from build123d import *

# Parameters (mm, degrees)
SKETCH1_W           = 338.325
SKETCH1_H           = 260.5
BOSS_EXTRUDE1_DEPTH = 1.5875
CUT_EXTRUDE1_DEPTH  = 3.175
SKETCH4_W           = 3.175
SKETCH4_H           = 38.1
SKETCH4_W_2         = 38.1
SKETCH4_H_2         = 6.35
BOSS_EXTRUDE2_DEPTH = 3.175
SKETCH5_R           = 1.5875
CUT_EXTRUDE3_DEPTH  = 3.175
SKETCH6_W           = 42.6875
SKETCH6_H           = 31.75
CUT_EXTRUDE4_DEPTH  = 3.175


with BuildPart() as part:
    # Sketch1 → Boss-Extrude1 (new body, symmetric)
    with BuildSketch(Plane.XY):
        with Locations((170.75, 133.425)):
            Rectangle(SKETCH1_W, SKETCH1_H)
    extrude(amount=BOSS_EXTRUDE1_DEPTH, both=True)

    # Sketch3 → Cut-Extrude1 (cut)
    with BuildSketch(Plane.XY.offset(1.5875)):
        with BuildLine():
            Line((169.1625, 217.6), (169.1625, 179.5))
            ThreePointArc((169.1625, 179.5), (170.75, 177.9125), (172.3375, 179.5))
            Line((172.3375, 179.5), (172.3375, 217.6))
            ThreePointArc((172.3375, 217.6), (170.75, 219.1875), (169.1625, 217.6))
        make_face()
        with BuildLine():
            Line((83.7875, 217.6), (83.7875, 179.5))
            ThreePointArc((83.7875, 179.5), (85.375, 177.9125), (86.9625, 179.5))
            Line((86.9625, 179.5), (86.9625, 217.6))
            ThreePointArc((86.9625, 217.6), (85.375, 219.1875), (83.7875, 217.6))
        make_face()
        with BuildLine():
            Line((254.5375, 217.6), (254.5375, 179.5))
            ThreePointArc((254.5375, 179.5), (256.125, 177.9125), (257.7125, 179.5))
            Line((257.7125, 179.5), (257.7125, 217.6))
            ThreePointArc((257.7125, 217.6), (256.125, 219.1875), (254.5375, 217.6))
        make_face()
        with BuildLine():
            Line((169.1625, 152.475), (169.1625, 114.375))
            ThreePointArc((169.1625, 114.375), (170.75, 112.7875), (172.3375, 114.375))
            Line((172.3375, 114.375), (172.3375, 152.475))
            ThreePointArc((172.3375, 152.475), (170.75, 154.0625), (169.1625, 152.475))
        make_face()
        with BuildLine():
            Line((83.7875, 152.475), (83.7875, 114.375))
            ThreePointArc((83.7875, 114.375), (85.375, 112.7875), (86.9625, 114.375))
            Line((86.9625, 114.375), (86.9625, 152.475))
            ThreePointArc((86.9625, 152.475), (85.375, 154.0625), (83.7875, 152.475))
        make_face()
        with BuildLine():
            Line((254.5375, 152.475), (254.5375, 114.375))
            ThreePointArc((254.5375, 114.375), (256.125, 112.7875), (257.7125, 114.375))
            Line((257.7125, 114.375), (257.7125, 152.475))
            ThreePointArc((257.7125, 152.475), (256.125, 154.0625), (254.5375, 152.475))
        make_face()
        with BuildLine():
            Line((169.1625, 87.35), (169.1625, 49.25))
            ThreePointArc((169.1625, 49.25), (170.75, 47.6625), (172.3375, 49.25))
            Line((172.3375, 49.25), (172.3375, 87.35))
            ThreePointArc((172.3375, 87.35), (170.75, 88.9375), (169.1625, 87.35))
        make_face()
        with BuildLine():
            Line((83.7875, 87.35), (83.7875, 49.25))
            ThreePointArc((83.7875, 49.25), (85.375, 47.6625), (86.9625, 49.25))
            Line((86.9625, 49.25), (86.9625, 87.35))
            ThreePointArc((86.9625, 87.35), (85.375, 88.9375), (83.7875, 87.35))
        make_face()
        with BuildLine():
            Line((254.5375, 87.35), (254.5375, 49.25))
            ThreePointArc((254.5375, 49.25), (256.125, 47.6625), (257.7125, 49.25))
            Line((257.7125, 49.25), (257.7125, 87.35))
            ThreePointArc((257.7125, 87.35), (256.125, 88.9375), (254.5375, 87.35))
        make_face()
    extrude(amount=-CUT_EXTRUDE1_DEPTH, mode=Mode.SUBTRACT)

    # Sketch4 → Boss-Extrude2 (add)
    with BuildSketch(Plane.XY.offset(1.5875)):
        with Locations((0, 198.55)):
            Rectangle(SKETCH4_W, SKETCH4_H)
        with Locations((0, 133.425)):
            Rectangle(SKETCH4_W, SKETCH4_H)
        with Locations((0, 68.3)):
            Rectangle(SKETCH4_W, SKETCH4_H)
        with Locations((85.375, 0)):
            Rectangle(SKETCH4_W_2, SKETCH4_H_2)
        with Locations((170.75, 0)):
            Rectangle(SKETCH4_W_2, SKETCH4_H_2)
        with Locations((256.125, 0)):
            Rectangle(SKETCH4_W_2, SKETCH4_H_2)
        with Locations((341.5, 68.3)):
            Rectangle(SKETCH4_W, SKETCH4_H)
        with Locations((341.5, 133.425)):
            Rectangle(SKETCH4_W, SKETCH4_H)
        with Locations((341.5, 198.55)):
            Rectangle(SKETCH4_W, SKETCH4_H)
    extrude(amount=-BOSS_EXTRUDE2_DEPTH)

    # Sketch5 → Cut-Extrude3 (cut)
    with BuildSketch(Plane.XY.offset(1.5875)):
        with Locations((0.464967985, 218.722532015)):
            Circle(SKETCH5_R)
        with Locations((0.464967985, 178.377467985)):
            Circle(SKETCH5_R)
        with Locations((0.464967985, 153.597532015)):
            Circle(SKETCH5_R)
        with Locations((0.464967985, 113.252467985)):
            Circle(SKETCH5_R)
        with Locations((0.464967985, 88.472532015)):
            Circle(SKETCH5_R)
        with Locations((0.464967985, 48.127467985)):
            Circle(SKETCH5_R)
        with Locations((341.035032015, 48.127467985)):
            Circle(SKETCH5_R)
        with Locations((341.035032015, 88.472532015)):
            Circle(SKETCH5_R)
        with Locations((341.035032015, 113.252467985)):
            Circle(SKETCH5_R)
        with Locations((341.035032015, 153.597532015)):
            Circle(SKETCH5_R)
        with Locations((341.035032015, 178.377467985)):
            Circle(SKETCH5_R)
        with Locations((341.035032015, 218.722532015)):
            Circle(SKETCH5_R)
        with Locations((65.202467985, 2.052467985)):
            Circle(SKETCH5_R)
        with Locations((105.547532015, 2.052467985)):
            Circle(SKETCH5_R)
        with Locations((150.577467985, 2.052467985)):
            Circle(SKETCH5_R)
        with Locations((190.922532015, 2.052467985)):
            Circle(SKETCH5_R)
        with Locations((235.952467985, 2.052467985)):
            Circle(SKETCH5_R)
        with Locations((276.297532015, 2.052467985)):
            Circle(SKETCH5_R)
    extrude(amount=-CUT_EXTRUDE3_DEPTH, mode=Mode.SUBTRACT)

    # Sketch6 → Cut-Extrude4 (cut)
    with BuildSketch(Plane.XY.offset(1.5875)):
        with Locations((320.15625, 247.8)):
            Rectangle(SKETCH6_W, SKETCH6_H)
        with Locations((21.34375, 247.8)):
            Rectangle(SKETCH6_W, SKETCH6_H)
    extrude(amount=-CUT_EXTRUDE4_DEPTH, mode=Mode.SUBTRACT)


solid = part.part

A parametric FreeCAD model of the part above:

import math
import FreeCAD as App
import Part
import Sketcher
from FreeCAD import Vector
Q = App.Units.Quantity


def add_polygon(sketch, points):
    """Adds a closed chain of lines whose ends are joined by coincident constraints."""
    first, n = sketch.GeometryCount, len(points)
    for a, b in zip(points, points[1:] + points[:1]):
        sketch.addGeometry(Part.LineSegment(App.Vector(*a, 0), App.Vector(*b, 0)), False)
    for i in range(n):
        sketch.addConstraint(Sketcher.Constraint("Coincident", first + i, 2, first + (i + 1) % n, 1))

doc = App.newDocument("Part")
body = doc.addObject("PartDesign::Body", "Body")

sketch1 = doc.addObject("Sketcher::SketchObject", "Sketch")
body.addObject(sketch1)
sketch1.AttachmentSupport = (doc.XY_Plane, [""])
sketch1.MapMode = "FlatFace"
add_polygon(sketch1, [(2, 264), (2, 3), (340, 3), (340, 264)])
sketch1.addConstraint([
    Sketcher.Constraint("Vertical", 0),
    Sketcher.Constraint("Horizontal", 1),
    Sketcher.Constraint("Vertical", 2),
    Sketcher.Constraint("Horizontal", 3),
    Sketcher.Constraint("DistanceX", -1, 1, 0, 2, Q("0.0625 in")),
    Sketcher.Constraint("DistanceY", -1, 1, 0, 2, Q("0.125 in")),
    Sketcher.Constraint("DistanceX", 1, 1, 1, 2, Q("338.325 mm")),
    Sketcher.Constraint("DistanceY", 0, 2, 0, 1, Q("260.5 mm")),
])
pad1 = doc.addObject("PartDesign::Pad", "Pad")
body.addObject(pad1)
pad1.Profile = sketch1
pad1.Length = Q("0.125 in")
pad1.Midplane = True

sketch2 = doc.addObject("Sketcher::SketchObject", "Sketch001")
body.addObject(sketch2)
sketch2.AttachmentSupport = (doc.XY_Plane, [""])
sketch2.MapMode = "FlatFace"
sketch2.AttachmentOffset = App.Placement(Vector(0, 0, 0.0625 * 25.4), App.Rotation())
sketch2.addGeometry([
    Part.LineSegment(Vector(169.2, 217.6, 0), Vector(169.2, 179.5, 0)),
    Part.ArcOfCircle(Part.Circle(Vector(170.8, 179.5, 0), Vector(0, 0, 1), 1.6), math.radians(180), math.radians(360)),
    Part.LineSegment(Vector(172.3, 179.5, 0), Vector(172.3, 217.6, 0)),
    Part.ArcOfCircle(Part.Circle(Vector(170.8, 217.6, 0), Vector(0, 0, 1), 1.6), math.radians(0), math.radians(180)),
    Part.LineSegment(Vector(83.8, 217.6, 0), Vector(83.8, 179.5, 0)),
    Part.ArcOfCircle(Part.Circle(Vector(85.4, 179.5, 0), Vector(0, 0, 1), 1.6), math.radians(180), math.radians(360)),
    Part.LineSegment(Vector(87, 179.5, 0), Vector(87, 217.6, 0)),
    Part.ArcOfCircle(Part.Circle(Vector(85.4, 217.6, 0), Vector(0, 0, 1), 1.6), math.radians(0), math.radians(180)),
    Part.LineSegment(Vector(254.5, 217.6, 0), Vector(254.5, 179.5, 0)),
    Part.ArcOfCircle(Part.Circle(Vector(256.1, 179.5, 0), Vector(0, 0, 1), 1.6), math.radians(180), math.radians(360)),
    Part.LineSegment(Vector(257.7, 179.5, 0), Vector(257.7, 217.6, 0)),
    Part.ArcOfCircle(Part.Circle(Vector(256.1, 217.6, 0), Vector(0, 0, 1), 1.6), math.radians(0), math.radians(180)),
    Part.LineSegment(Vector(169.2, 152.5, 0), Vector(169.2, 114.4, 0)),
    Part.ArcOfCircle(Part.Circle(Vector(170.8, 114.4, 0), Vector(0, 0, 1), 1.6), math.radians(180), math.radians(360)),
    Part.LineSegment(Vector(172.3, 114.4, 0), Vector(172.3, 152.5, 0)),
    Part.ArcOfCircle(Part.Circle(Vector(170.8, 152.5, 0), Vector(0, 0, 1), 1.6), math.radians(0), math.radians(180)),
    Part.LineSegment(Vector(83.8, 152.5, 0), Vector(83.8, 114.4, 0)),
    Part.ArcOfCircle(Part.Circle(Vector(85.4, 114.4, 0), Vector(0, 0, 1), 1.6), math.radians(180), math.radians(360)),
    Part.LineSegment(Vector(87, 114.4, 0), Vector(87, 152.5, 0)),
    Part.ArcOfCircle(Part.Circle(Vector(85.4, 152.5, 0), Vector(0, 0, 1), 1.6), math.radians(0), math.radians(180)),
    Part.LineSegment(Vector(254.5, 152.5, 0), Vector(254.5, 114.4, 0)),
    Part.ArcOfCircle(Part.Circle(Vector(256.1, 114.4, 0), Vector(0, 0, 1), 1.6), math.radians(180), math.radians(360)),
    Part.LineSegment(Vector(257.7, 114.4, 0), Vector(257.7, 152.5, 0)),
    Part.ArcOfCircle(Part.Circle(Vector(256.1, 152.5, 0), Vector(0, 0, 1), 1.6), math.radians(0), math.radians(180)),
    Part.LineSegment(Vector(169.2, 87.3, 0), Vector(169.2, 49.2, 0)),
    Part.ArcOfCircle(Part.Circle(Vector(170.8, 49.2, 0), Vector(0, 0, 1), 1.6), math.radians(180), math.radians(360)),
    Part.LineSegment(Vector(172.3, 49.2, 0), Vector(172.3, 87.3, 0)),
    Part.ArcOfCircle(Part.Circle(Vector(170.8, 87.3, 0), Vector(0, 0, 1), 1.6), math.radians(0), math.radians(180)),
    Part.LineSegment(Vector(83.8, 87.3, 0), Vector(83.8, 49.2, 0)),
    Part.ArcOfCircle(Part.Circle(Vector(85.4, 49.2, 0), Vector(0, 0, 1), 1.6), math.radians(180), math.radians(360)),
    Part.LineSegment(Vector(87, 49.2, 0), Vector(87, 87.3, 0)),
    Part.ArcOfCircle(Part.Circle(Vector(85.4, 87.3, 0), Vector(0, 0, 1), 1.6), math.radians(0), math.radians(180)),
    Part.LineSegment(Vector(254.5, 87.3, 0), Vector(254.5, 49.2, 0)),
    Part.ArcOfCircle(Part.Circle(Vector(256.1, 49.2, 0), Vector(0, 0, 1), 1.6), math.radians(180), math.radians(360)),
    Part.LineSegment(Vector(257.7, 49.2, 0), Vector(257.7, 87.3, 0)),
    Part.ArcOfCircle(Part.Circle(Vector(256.1, 87.3, 0), Vector(0, 0, 1), 1.6), math.radians(0), math.radians(180)),
], False)
sketch2.addConstraint([
    Sketcher.Constraint("Tangent", 0, 2, 1, 1),
    Sketcher.Constraint("Tangent", 1, 2, 2, 1),
    Sketcher.Constraint("Tangent", 2, 2, 3, 1),
    Sketcher.Constraint("Tangent", 3, 2, 0, 1),
    Sketcher.Constraint("Tangent", 4, 2, 5, 1),
    Sketcher.Constraint("Tangent", 5, 2, 6, 1),
    Sketcher.Constraint("Tangent", 6, 2, 7, 1),
    Sketcher.Constraint("Tangent", 7, 2, 4, 1),
    Sketcher.Constraint("Tangent", 8, 2, 9, 1),
    Sketcher.Constraint("Tangent", 9, 2, 10, 1),
    Sketcher.Constraint("Tangent", 10, 2, 11, 1),
    Sketcher.Constraint("Tangent", 11, 2, 8, 1),
    Sketcher.Constraint("Tangent", 12, 2, 13, 1),
    Sketcher.Constraint("Tangent", 13, 2, 14, 1),
    Sketcher.Constraint("Tangent", 14, 2, 15, 1),
    Sketcher.Constraint("Tangent", 15, 2, 12, 1),
    Sketcher.Constraint("Tangent", 16, 2, 17, 1),
    Sketcher.Constraint("Tangent", 17, 2, 18, 1),
    Sketcher.Constraint("Tangent", 18, 2, 19, 1),
    Sketcher.Constraint("Tangent", 19, 2, 16, 1),
    Sketcher.Constraint("Tangent", 20, 2, 21, 1),
    Sketcher.Constraint("Tangent", 21, 2, 22, 1),
    Sketcher.Constraint("Tangent", 22, 2, 23, 1),
    Sketcher.Constraint("Tangent", 23, 2, 20, 1),
    Sketcher.Constraint("Tangent", 24, 2, 25, 1),
    Sketcher.Constraint("Tangent", 25, 2, 26, 1),
    Sketcher.Constraint("Tangent", 26, 2, 27, 1),
    Sketcher.Constraint("Tangent", 27, 2, 24, 1),
    Sketcher.Constraint("Tangent", 28, 2, 29, 1),
    Sketcher.Constraint("Tangent", 29, 2, 30, 1),
    Sketcher.Constraint("Tangent", 30, 2, 31, 1),
    Sketcher.Constraint("Tangent", 31, 2, 28, 1),
    Sketcher.Constraint("Tangent", 32, 2, 33, 1),
    Sketcher.Constraint("Tangent", 33, 2, 34, 1),
    Sketcher.Constraint("Tangent", 34, 2, 35, 1),
    Sketcher.Constraint("Tangent", 35, 2, 32, 1),
    Sketcher.Constraint("Vertical", 0),
    Sketcher.Constraint("Vertical", 2),
    Sketcher.Constraint("Vertical", 4),
    Sketcher.Constraint("Vertical", 6),
    Sketcher.Constraint("Vertical", 8),
    Sketcher.Constraint("Vertical", 10),
    Sketcher.Constraint("Vertical", 12),
    Sketcher.Constraint("Vertical", 14),
    Sketcher.Constraint("Vertical", 16),
    Sketcher.Constraint("Vertical", 18),
    Sketcher.Constraint("Vertical", 20),
    Sketcher.Constraint("Vertical", 22),
    Sketcher.Constraint("Vertical", 24),
    Sketcher.Constraint("Vertical", 26),
    Sketcher.Constraint("Vertical", 28),
    Sketcher.Constraint("Vertical", 30),
    Sketcher.Constraint("Vertical", 32),
    Sketcher.Constraint("Vertical", 34),
    Sketcher.Constraint("Equal", 3, 5),
    Sketcher.Constraint("Equal", 7, 9),
    Sketcher.Constraint("Equal", 11, 13),
    Sketcher.Constraint("Equal", 15, 17),
    Sketcher.Constraint("Equal", 19, 21),
    Sketcher.Constraint("Equal", 23, 25),
    Sketcher.Constraint("Equal", 27, 29),
    Sketcher.Constraint("Equal", 31, 33),
    Sketcher.Constraint("Horizontal", 1, 3, 5, 3),
    Sketcher.Constraint("Horizontal", 3, 3, 7, 3),
    Sketcher.Constraint("Horizontal", 5, 3, 9, 3),
    Sketcher.Constraint("Horizontal", 7, 3, 11, 3),
    Sketcher.Constraint("Horizontal", 13, 3, 17, 3),
    Sketcher.Constraint("Horizontal", 15, 3, 19, 3),
    Sketcher.Constraint("Horizontal", 17, 3, 21, 3),
    Sketcher.Constraint("Horizontal", 19, 3, 23, 3),
    Sketcher.Constraint("Horizontal", 25, 3, 29, 3),
    Sketcher.Constraint("Horizontal", 27, 3, 31, 3),
    Sketcher.Constraint("Horizontal", 29, 3, 33, 3),
    Sketcher.Constraint("Horizontal", 31, 3, 35, 3),
    Sketcher.Constraint("Vertical", 3, 3, 13, 3),
    Sketcher.Constraint("Vertical", 7, 3, 17, 3),
    Sketcher.Constraint("Vertical", 11, 3, 21, 3),
    Sketcher.Constraint("Vertical", 15, 3, 25, 3),
    Sketcher.Constraint("Vertical", 19, 3, 29, 3),
    Sketcher.Constraint("Vertical", 23, 3, 33, 3),
    Sketcher.Constraint("Equal", 10, 12),
    Sketcher.Constraint("Equal", 22, 24),
    Sketcher.Constraint("DistanceY", 0, 2, 0, 1, Q("1.5 in")),
    Sketcher.Constraint("Radius", 1, Q("0.0625 in")),
    Sketcher.Constraint("DistanceX", -1, 1, 1, 3, Q("170.75 mm")),
    Sketcher.Constraint("DistanceY", -1, 1, 1, 3, Q("179.5 mm")),
    Sketcher.Constraint("DistanceX", -1, 1, 5, 3, Q("85.375 mm")),
    Sketcher.Constraint("DistanceX", -1, 1, 9, 3, Q("256.125 mm")),
    Sketcher.Constraint("DistanceY", -1, 1, 13, 3, Q("114.375 mm")),
    Sketcher.Constraint("DistanceY", -1, 1, 25, 3, Q("49.25 mm")),
])
pocket1 = doc.addObject("PartDesign::Pocket", "Pocket")
body.addObject(pocket1)
pocket1.Profile = sketch2
pocket1.Length = Q("0.125 in")

sketch3 = doc.addObject("Sketcher::SketchObject", "Sketch002")
body.addObject(sketch3)
sketch3.AttachmentSupport = (doc.XY_Plane, [""])
sketch3.MapMode = "FlatFace"
sketch3.AttachmentOffset = App.Placement(Vector(0, 0, 0.0625 * 25.4), App.Rotation())
add_polygon(sketch3, [(-1.6, 217.6), (-1.6, 179.5), (1.6, 179.5), (1.6, 217.6)])
add_polygon(sketch3, [(-1.6, 152.5), (-1.6, 114.4), (1.6, 114.4), (1.6, 152.5)])
add_polygon(sketch3, [(-1.6, 87.3), (-1.6, 49.2), (1.6, 49.2), (1.6, 87.3)])
add_polygon(sketch3, [(66.3, 3.2), (66.3, -3.2), (104.4, -3.2), (104.4, 3.2)])
add_polygon(sketch3, [(151.7, 3.2), (151.7, -3.2), (189.8, -3.2), (189.8, 3.2)])
add_polygon(sketch3, [(237.1, 3.2), (237.1, -3.2), (275.2, -3.2), (275.2, 3.2)])
add_polygon(sketch3, [(339.9, 87.3), (339.9, 49.2), (343.1, 49.2), (343.1, 87.3)])
add_polygon(sketch3, [(339.9, 152.5), (339.9, 114.4), (343.1, 114.4), (343.1, 152.5)])
add_polygon(sketch3, [(339.9, 217.6), (339.9, 179.5), (343.1, 179.5), (343.1, 217.6)])
sketch3.addConstraint([
    Sketcher.Constraint("Vertical", 0),
    Sketcher.Constraint("Horizontal", 1),
    Sketcher.Constraint("Vertical", 2),
    Sketcher.Constraint("Horizontal", 3),
    Sketcher.Constraint("Vertical", 4),
    Sketcher.Constraint("Horizontal", 5),
    Sketcher.Constraint("Vertical", 6),
    Sketcher.Constraint("Horizontal", 7),
    Sketcher.Constraint("Vertical", 8),
    Sketcher.Constraint("Horizontal", 9),
    Sketcher.Constraint("Vertical", 10),
    Sketcher.Constraint("Horizontal", 11),
    Sketcher.Constraint("Vertical", 12),
    Sketcher.Constraint("Horizontal", 13),
    Sketcher.Constraint("Vertical", 14),
    Sketcher.Constraint("Horizontal", 15),
    Sketcher.Constraint("Vertical", 16),
    Sketcher.Constraint("Horizontal", 17),
    Sketcher.Constraint("Vertical", 18),
    Sketcher.Constraint("Horizontal", 19),
    Sketcher.Constraint("Vertical", 20),
    Sketcher.Constraint("Horizontal", 21),
    Sketcher.Constraint("Vertical", 22),
    Sketcher.Constraint("Horizontal", 23),
    Sketcher.Constraint("Vertical", 24),
    Sketcher.Constraint("Horizontal", 25),
    Sketcher.Constraint("Vertical", 26),
    Sketcher.Constraint("Horizontal", 27),
    Sketcher.Constraint("Vertical", 28),
    Sketcher.Constraint("Horizontal", 29),
    Sketcher.Constraint("Vertical", 30),
    Sketcher.Constraint("Horizontal", 31),
    Sketcher.Constraint("Vertical", 32),
    Sketcher.Constraint("Horizontal", 33),
    Sketcher.Constraint("Vertical", 34),
    Sketcher.Constraint("Horizontal", 35),
    Sketcher.Constraint("Horizontal", 13, 2, 16, 2),
    Sketcher.Constraint("Horizontal", 15, 2, 18, 2),
    Sketcher.Constraint("Horizontal", 17, 2, 20, 2),
    Sketcher.Constraint("Horizontal", 19, 2, 22, 2),
    Sketcher.Constraint("Horizontal", 9, 2, 24, 2),
    Sketcher.Constraint("Horizontal", 11, 2, 26, 2),
    Sketcher.Constraint("Horizontal", 5, 2, 28, 2),
    Sketcher.Constraint("Horizontal", 7, 2, 30, 2),
    Sketcher.Constraint("Horizontal", 1, 2, 32, 2),
    Sketcher.Constraint("Horizontal", 3, 2, 34, 2),
    Sketcher.Constraint("Vertical", 3, 2, 4, 2),
    Sketcher.Constraint("Vertical", 2, 2, 5, 2),
    Sketcher.Constraint("Vertical", 7, 2, 8, 2),
    Sketcher.Constraint("Vertical", 6, 2, 9, 2),
    Sketcher.Constraint("Vertical", 27, 2, 28, 2),
    Sketcher.Constraint("Vertical", 26, 2, 29, 2),
    Sketcher.Constraint("Vertical", 31, 2, 32, 2),
    Sketcher.Constraint("Vertical", 30, 2, 33, 2),
    Sketcher.Constraint("Equal", 15, 17),
    Sketcher.Constraint("Equal", 19, 21),
    Sketcher.Constraint("Equal", 11, 25),
    Sketcher.Constraint("Equal", 23, 0),
    Sketcher.Constraint("Equal", 2, 4),
    Sketcher.Constraint("Equal", 6, 8),
    Sketcher.Constraint("DistanceX", 13, 1, 13, 2, Q("1.5 in")),
    Sketcher.Constraint("DistanceY", 12, 2, 12, 1, Q("0.25 in")),
    Sketcher.Constraint("DistanceX", 1, 1, 1, 2, Q("0.125 in")),
    Sketcher.Constraint("DistanceX", 0, 2, -1, 1, Q("0.0625 in")),
    Sketcher.Constraint("DistanceY", 12, 2, -1, 1, Q("0.125 in")),
    Sketcher.Constraint("DistanceY", -1, 1, 0, 2, Q("179.5 mm")),
    Sketcher.Constraint("DistanceY", -1, 1, 4, 2, Q("114.375 mm")),
    Sketcher.Constraint("DistanceY", -1, 1, 8, 2, Q("49.25 mm")),
    Sketcher.Constraint("DistanceX", -1, 1, 12, 2, Q("66.325 mm")),
    Sketcher.Constraint("DistanceX", -1, 1, 16, 2, Q("151.7 mm")),
    Sketcher.Constraint("DistanceX", -1, 1, 20, 2, Q("237.075 mm")),
    Sketcher.Constraint("DistanceX", -1, 1, 24, 2, Q("339.9125 mm")),
])
pad2 = doc.addObject("PartDesign::Pad", "Pad001")
body.addObject(pad2)
pad2.Profile = sketch3
pad2.Length = Q("0.125 in")
pad2.Reversed = True

sketch4 = doc.addObject("Sketcher::SketchObject", "Sketch003")
body.addObject(sketch4)
sketch4.AttachmentSupport = (doc.XY_Plane, [""])
sketch4.MapMode = "FlatFace"
sketch4.AttachmentOffset = App.Placement(Vector(0, 0, 0.0625 * 25.4), App.Rotation())
sketch4.addGeometry([
    Part.Circle(Vector(0.5, 218.7, 0), Vector(0, 0, 1), 1.6),
    Part.Circle(Vector(0.5, 178.4, 0), Vector(0, 0, 1), 1.6),
    Part.Circle(Vector(0.5, 153.6, 0), Vector(0, 0, 1), 1.6),
    Part.Circle(Vector(0.5, 113.3, 0), Vector(0, 0, 1), 1.6),
    Part.Circle(Vector(0.5, 88.5, 0), Vector(0, 0, 1), 1.6),
    Part.Circle(Vector(0.5, 48.1, 0), Vector(0, 0, 1), 1.6),
    Part.Circle(Vector(341, 48.1, 0), Vector(0, 0, 1), 1.6),
    Part.Circle(Vector(341, 88.5, 0), Vector(0, 0, 1), 1.6),
    Part.Circle(Vector(341, 113.3, 0), Vector(0, 0, 1), 1.6),
    Part.Circle(Vector(341, 153.6, 0), Vector(0, 0, 1), 1.6),
    Part.Circle(Vector(341, 178.4, 0), Vector(0, 0, 1), 1.6),
    Part.Circle(Vector(341, 218.7, 0), Vector(0, 0, 1), 1.6),
    Part.Circle(Vector(65.2, 2.1, 0), Vector(0, 0, 1), 1.6),
    Part.Circle(Vector(105.5, 2.1, 0), Vector(0, 0, 1), 1.6),
    Part.Circle(Vector(150.6, 2.1, 0), Vector(0, 0, 1), 1.6),
    Part.Circle(Vector(190.9, 2.1, 0), Vector(0, 0, 1), 1.6),
    Part.Circle(Vector(236, 2.1, 0), Vector(0, 0, 1), 1.6),
    Part.Circle(Vector(276.3, 2.1, 0), Vector(0, 0, 1), 1.6),
], False)
sketch4.addConstraint([
    Sketcher.Constraint("Equal", 0, 1),
    Sketcher.Constraint("Equal", 1, 2),
    Sketcher.Constraint("Equal", 2, 3),
    Sketcher.Constraint("Equal", 3, 4),
    Sketcher.Constraint("Equal", 4, 5),
    Sketcher.Constraint("Equal", 5, 6),
    Sketcher.Constraint("Equal", 6, 7),
    Sketcher.Constraint("Equal", 7, 8),
    Sketcher.Constraint("Equal", 8, 9),
    Sketcher.Constraint("Equal", 9, 10),
    Sketcher.Constraint("Equal", 10, 11),
    Sketcher.Constraint("Equal", 11, 12),
    Sketcher.Constraint("Equal", 12, 13),
    Sketcher.Constraint("Equal", 13, 14),
    Sketcher.Constraint("Equal", 14, 15),
    Sketcher.Constraint("Equal", 15, 16),
    Sketcher.Constraint("Equal", 16, 17),
    Sketcher.Constraint("Horizontal", 5, 3, 6, 3),
    Sketcher.Constraint("Horizontal", 4, 3, 7, 3),
    Sketcher.Constraint("Horizontal", 3, 3, 8, 3),
    Sketcher.Constraint("Horizontal", 2, 3, 9, 3),
    Sketcher.Constraint("Horizontal", 1, 3, 10, 3),
    Sketcher.Constraint("Horizontal", 0, 3, 11, 3),
    Sketcher.Constraint("Horizontal", 12, 3, 13, 3),
    Sketcher.Constraint("Horizontal", 13, 3, 14, 3),
    Sketcher.Constraint("Horizontal", 14, 3, 15, 3),
    Sketcher.Constraint("Horizontal", 15, 3, 16, 3),
    Sketcher.Constraint("Horizontal", 16, 3, 17, 3),
    Sketcher.Constraint("Vertical", 0, 3, 1, 3),
    Sketcher.Constraint("Vertical", 1, 3, 2, 3),
    Sketcher.Constraint("Vertical", 2, 3, 3, 3),
    Sketcher.Constraint("Vertical", 3, 3, 4, 3),
    Sketcher.Constraint("Vertical", 4, 3, 5, 3),
    Sketcher.Constraint("Vertical", 6, 3, 7, 3),
    Sketcher.Constraint("Vertical", 7, 3, 8, 3),
    Sketcher.Constraint("Vertical", 8, 3, 9, 3),
    Sketcher.Constraint("Vertical", 9, 3, 10, 3),
    Sketcher.Constraint("Vertical", 10, 3, 11, 3),
    Sketcher.Constraint("Diameter", 0, Q("0.125 in")),
    Sketcher.Constraint("DistanceY", 2, 3, 0, 3, Q("65.125 mm")),
    Sketcher.Constraint("DistanceY", 3, 3, 1, 3, Q("65.125 mm")),
    Sketcher.Constraint("DistanceY", 4, 3, 2, 3, Q("65.125 mm")),
    Sketcher.Constraint("DistanceY", 5, 3, 3, 3, Q("65.125 mm")),
    Sketcher.Constraint("DistanceX", 5, 3, 12, 3, Q("64.7375 mm")),
    Sketcher.Constraint("DistanceY", 12, 3, 5, 3, Q("46.075 mm")),
    Sketcher.Constraint("DistanceX", 12, 3, 14, 3, Q("85.375 mm")),
    Sketcher.Constraint("DistanceX", 13, 3, 15, 3, Q("85.375 mm")),
    Sketcher.Constraint("DistanceX", 15, 3, 6, 3, Q("150.1125 mm")),
    Sketcher.Constraint("DistanceX", 14, 3, 16, 3, Q("85.375 mm")),
    Sketcher.Constraint("DistanceX", 17, 3, 6, 3, Q("64.7375 mm")),
    Sketcher.Constraint("DistanceX", -1, 1, 0, 3, Q("0.464968 mm")),
    Sketcher.Constraint("DistanceY", -1, 1, 0, 3, Q("218.722532 mm")),
    Sketcher.Constraint("DistanceY", -1, 1, 1, 3, Q("178.377468 mm")),
    Sketcher.Constraint("DistanceX", -1, 1, 6, 3, Q("341.035032 mm")),
])
pocket2 = doc.addObject("PartDesign::Pocket", "Pocket001")
body.addObject(pocket2)
pocket2.Profile = sketch4
pocket2.Length = Q("0.125 in")

sketch5 = doc.addObject("Sketcher::SketchObject", "Sketch004")
body.addObject(sketch5)
sketch5.AttachmentSupport = (doc.XY_Plane, [""])
sketch5.MapMode = "FlatFace"
sketch5.AttachmentOffset = App.Placement(Vector(0, 0, 0.0625 * 25.4), App.Rotation())
add_polygon(sketch5, [(299, 264), (299, 232), (342, 232), (342, 264)])
add_polygon(sketch5, [(0, 264), (0, 232), (43, 232), (43, 264)])
sketch5.addConstraint([
    Sketcher.Constraint("Vertical", 0),
    Sketcher.Constraint("Horizontal", 1),
    Sketcher.Constraint("Vertical", 2),
    Sketcher.Constraint("Horizontal", 3),
    Sketcher.Constraint("Vertical", 4),
    Sketcher.Constraint("Horizontal", 5),
    Sketcher.Constraint("Vertical", 6),
    Sketcher.Constraint("Horizontal", 7),
    Sketcher.Constraint("PointOnObject", 4, 2, -2),
    Sketcher.Constraint("Horizontal", 1, 2, 4, 2),
    Sketcher.Constraint("Horizontal", 3, 2, 6, 2),
    Sketcher.Constraint("Equal", 3, 5),
    Sketcher.Constraint("DistanceY", 0, 2, 0, 1, Q("1.25 in")),
    Sketcher.Constraint("DistanceX", 1, 1, 1, 2, Q("42.6875 mm")),
    Sketcher.Constraint("DistanceX", -1, 1, 0, 2, Q("298.8125 mm")),
    Sketcher.Constraint("DistanceY", -1, 1, 0, 2, Q("231.925 mm")),
])
pocket3 = doc.addObject("PartDesign::Pocket", "Pocket002")
body.addObject(pocket3)
pocket3.Profile = sketch5
pocket3.Length = Q("0.125 in")

doc.recompute()
